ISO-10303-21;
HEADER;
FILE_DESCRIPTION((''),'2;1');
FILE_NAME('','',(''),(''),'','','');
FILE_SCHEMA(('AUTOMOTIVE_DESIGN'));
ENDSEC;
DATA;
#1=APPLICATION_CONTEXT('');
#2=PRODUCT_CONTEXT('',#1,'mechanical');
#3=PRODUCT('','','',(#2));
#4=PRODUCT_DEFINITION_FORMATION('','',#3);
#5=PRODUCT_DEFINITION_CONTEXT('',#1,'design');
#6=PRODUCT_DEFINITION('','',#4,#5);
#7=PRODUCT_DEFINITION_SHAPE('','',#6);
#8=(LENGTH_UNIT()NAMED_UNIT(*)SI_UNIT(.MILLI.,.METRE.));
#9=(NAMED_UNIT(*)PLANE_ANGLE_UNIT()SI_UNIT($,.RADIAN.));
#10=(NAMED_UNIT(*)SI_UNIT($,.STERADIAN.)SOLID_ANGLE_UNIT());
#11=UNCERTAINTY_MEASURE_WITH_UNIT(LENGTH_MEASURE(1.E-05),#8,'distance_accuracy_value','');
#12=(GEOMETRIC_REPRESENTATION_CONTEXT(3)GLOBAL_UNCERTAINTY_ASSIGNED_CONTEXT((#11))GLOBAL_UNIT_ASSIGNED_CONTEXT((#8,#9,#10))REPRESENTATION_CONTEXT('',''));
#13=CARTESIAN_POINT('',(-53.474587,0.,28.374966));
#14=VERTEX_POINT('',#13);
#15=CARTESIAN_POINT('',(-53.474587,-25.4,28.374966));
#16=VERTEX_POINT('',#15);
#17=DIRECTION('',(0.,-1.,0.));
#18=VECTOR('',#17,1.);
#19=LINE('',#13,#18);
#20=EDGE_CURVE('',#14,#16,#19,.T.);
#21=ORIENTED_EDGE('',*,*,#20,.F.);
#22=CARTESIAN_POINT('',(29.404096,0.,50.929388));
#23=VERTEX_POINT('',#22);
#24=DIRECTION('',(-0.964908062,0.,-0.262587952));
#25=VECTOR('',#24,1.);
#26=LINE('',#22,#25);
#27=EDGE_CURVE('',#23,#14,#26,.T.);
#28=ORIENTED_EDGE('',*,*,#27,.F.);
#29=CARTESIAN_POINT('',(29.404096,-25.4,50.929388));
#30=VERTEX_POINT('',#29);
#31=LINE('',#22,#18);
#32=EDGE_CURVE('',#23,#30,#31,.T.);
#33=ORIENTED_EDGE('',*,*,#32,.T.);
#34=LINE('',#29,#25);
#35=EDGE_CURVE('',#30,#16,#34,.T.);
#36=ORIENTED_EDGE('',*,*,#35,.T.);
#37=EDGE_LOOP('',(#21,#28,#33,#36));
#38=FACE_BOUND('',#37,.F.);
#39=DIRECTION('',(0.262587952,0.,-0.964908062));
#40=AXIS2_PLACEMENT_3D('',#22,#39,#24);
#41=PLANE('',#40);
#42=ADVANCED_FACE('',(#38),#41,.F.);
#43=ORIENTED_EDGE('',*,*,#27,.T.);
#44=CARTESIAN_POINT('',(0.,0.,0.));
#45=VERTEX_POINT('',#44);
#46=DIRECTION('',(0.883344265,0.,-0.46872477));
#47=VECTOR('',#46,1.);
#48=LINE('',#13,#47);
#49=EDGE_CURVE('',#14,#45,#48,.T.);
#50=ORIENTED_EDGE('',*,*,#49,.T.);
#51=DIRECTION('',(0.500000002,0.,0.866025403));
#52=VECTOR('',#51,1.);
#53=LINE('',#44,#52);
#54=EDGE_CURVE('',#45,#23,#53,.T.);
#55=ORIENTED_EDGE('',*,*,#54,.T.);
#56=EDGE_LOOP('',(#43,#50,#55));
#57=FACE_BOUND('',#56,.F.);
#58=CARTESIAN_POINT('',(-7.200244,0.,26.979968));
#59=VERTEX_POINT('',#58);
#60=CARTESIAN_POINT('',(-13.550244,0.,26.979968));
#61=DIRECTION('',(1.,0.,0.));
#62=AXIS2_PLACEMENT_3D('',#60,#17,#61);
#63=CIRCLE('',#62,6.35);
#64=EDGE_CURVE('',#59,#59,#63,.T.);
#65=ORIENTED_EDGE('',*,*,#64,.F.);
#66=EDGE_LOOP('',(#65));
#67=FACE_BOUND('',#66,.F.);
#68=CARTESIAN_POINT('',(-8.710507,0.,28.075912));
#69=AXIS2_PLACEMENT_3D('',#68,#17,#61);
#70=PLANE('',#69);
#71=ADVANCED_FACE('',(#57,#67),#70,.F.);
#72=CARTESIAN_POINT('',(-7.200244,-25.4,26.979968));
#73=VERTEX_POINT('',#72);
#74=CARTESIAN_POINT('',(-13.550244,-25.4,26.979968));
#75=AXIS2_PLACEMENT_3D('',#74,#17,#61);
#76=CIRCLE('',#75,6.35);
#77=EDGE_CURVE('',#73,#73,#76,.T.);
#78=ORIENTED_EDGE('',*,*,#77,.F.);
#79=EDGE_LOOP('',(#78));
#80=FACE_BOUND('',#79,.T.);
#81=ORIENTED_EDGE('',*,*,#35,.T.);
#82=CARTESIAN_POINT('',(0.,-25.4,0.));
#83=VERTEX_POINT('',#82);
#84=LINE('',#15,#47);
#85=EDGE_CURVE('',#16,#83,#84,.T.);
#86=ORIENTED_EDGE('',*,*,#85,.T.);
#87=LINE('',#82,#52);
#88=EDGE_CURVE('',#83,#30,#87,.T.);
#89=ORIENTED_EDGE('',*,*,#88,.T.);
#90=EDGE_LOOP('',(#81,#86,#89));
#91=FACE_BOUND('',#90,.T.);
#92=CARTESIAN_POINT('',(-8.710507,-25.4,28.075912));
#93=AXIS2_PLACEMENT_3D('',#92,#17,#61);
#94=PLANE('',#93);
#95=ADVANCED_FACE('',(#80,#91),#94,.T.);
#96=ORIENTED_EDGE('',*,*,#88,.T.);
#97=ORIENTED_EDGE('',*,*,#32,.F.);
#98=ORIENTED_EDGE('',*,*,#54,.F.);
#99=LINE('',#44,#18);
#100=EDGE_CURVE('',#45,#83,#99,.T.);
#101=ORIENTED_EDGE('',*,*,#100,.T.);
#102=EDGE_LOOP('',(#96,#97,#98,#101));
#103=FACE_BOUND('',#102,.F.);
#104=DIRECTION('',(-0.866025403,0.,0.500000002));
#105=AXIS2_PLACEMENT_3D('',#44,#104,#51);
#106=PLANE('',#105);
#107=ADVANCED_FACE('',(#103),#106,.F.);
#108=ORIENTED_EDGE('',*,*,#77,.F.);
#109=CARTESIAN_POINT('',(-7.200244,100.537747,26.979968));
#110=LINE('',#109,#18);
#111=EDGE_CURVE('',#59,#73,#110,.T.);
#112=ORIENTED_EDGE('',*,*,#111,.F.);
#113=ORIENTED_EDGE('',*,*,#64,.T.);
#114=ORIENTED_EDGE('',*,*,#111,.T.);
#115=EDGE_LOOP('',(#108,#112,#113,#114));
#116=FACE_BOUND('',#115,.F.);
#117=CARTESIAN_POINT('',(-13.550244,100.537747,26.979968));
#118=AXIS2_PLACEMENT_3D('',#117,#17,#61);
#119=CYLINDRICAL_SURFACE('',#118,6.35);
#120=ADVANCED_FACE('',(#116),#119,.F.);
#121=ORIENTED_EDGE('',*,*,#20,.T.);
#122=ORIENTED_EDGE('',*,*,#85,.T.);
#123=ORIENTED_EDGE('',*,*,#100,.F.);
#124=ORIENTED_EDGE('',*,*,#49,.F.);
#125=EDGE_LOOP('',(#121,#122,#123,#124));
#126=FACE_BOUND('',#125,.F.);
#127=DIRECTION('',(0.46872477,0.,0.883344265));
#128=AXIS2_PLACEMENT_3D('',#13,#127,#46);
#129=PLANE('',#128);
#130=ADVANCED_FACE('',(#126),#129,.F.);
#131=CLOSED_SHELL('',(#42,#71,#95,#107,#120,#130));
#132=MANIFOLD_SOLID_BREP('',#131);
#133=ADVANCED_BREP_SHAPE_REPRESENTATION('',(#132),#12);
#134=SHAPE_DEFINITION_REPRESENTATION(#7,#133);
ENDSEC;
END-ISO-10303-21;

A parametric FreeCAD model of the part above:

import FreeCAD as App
import Part
import Sketcher
from FreeCAD import Vector
Q = App.Units.Quantity


def add_polygon(sketch, points):
    """Adds a closed chain of lines whose ends are joined by coincident constraints."""
    first, n = sketch.GeometryCount, len(points)
    for a, b in zip(points, points[1:] + points[:1]):
        sketch.addGeometry(Part.LineSegment(App.Vector(*a, 0), App.Vector(*b, 0)), False)
    for i in range(n):
        sketch.addConstraint(Sketcher.Constraint("Coincident", first + i, 2, first + (i + 1) % n, 1))

doc = App.newDocument("Part")
params = doc.addObject("Spreadsheet::Sheet", "Params")
for row, (alias, value) in enumerate([
    ("pad1_length", "1 in"),
    ("sketch2_diameter", "0.5 in"),
    ("hole_diameter", "0.5 in"),
], start=1):
    params.set(f"A{row}", alias)
    params.set(f"B{row}", "=" + value)
    params.setAlias(f"B{row}", alias)

body = doc.addObject("PartDesign::Body", "Body")

# Sketch on XZ plane
sketch1 = doc.addObject("Sketcher::SketchObject", "Sketch")
body.addObject(sketch1)
sketch1.AttachmentSupport = (doc.XZ_Plane, [""])
sketch1.MapMode = "FlatFace"
add_polygon(sketch1, [(-53.474587, 28.374966), (0, 0), (29.404096, 50.929388)])  # lines 0-2
sketch1.addConstraint([
    Sketcher.Constraint("Coincident", 0, 2, -1, 1),
    Sketcher.Constraint("Angle", 1, Q("60 deg")),
    Sketcher.Constraint("Distance", 0, Q("60.536519 mm")),
    Sketcher.Constraint("Distance", 1, Q("58.808192 mm")),
    Sketcher.Constraint("Distance", 2, Q("85.892829 mm")),
])
pad1 = doc.addObject("PartDesign::Pad", "Pad")
body.addObject(pad1)
pad1.Profile = sketch1
pad1.setExpression("Length", "Params.pad1_length")

# Sketch on XZ plane
sketch2 = doc.addObject("Sketcher::SketchObject", "Sketch001")
body.addObject(sketch2)
sketch2.AttachmentSupport = (doc.XZ_Plane, [""])
sketch2.MapMode = "FlatFace"
sketch2.addGeometry(Part.Circle(Vector(-13.550244, 26.979968, 0), Vector(0, 0, 1), 6.35), False)
sketch2.addConstraint([
    Sketcher.Constraint("Diameter", 0, Q("0.5 in")),
    Sketcher.Constraint("DistanceX", 0, 3, -1, 1, Q("13.550244 mm")),
    Sketcher.Constraint("DistanceY", -1, 1, 0, 3, Q("26.979968 mm")),
])
sketch2.setExpression("Constraints[0]", "Params.sketch2_diameter")
doc.recompute()
hole = doc.addObject("PartDesign::Hole", "Hole")
body.addObject(hole)
hole.Profile = sketch2
hole.ThreadType = "None"
hole.setExpression("Diameter", "Params.hole_diameter")
hole.DepthType = "ThroughAll"
hole.Reversed = True

doc.recompute()
